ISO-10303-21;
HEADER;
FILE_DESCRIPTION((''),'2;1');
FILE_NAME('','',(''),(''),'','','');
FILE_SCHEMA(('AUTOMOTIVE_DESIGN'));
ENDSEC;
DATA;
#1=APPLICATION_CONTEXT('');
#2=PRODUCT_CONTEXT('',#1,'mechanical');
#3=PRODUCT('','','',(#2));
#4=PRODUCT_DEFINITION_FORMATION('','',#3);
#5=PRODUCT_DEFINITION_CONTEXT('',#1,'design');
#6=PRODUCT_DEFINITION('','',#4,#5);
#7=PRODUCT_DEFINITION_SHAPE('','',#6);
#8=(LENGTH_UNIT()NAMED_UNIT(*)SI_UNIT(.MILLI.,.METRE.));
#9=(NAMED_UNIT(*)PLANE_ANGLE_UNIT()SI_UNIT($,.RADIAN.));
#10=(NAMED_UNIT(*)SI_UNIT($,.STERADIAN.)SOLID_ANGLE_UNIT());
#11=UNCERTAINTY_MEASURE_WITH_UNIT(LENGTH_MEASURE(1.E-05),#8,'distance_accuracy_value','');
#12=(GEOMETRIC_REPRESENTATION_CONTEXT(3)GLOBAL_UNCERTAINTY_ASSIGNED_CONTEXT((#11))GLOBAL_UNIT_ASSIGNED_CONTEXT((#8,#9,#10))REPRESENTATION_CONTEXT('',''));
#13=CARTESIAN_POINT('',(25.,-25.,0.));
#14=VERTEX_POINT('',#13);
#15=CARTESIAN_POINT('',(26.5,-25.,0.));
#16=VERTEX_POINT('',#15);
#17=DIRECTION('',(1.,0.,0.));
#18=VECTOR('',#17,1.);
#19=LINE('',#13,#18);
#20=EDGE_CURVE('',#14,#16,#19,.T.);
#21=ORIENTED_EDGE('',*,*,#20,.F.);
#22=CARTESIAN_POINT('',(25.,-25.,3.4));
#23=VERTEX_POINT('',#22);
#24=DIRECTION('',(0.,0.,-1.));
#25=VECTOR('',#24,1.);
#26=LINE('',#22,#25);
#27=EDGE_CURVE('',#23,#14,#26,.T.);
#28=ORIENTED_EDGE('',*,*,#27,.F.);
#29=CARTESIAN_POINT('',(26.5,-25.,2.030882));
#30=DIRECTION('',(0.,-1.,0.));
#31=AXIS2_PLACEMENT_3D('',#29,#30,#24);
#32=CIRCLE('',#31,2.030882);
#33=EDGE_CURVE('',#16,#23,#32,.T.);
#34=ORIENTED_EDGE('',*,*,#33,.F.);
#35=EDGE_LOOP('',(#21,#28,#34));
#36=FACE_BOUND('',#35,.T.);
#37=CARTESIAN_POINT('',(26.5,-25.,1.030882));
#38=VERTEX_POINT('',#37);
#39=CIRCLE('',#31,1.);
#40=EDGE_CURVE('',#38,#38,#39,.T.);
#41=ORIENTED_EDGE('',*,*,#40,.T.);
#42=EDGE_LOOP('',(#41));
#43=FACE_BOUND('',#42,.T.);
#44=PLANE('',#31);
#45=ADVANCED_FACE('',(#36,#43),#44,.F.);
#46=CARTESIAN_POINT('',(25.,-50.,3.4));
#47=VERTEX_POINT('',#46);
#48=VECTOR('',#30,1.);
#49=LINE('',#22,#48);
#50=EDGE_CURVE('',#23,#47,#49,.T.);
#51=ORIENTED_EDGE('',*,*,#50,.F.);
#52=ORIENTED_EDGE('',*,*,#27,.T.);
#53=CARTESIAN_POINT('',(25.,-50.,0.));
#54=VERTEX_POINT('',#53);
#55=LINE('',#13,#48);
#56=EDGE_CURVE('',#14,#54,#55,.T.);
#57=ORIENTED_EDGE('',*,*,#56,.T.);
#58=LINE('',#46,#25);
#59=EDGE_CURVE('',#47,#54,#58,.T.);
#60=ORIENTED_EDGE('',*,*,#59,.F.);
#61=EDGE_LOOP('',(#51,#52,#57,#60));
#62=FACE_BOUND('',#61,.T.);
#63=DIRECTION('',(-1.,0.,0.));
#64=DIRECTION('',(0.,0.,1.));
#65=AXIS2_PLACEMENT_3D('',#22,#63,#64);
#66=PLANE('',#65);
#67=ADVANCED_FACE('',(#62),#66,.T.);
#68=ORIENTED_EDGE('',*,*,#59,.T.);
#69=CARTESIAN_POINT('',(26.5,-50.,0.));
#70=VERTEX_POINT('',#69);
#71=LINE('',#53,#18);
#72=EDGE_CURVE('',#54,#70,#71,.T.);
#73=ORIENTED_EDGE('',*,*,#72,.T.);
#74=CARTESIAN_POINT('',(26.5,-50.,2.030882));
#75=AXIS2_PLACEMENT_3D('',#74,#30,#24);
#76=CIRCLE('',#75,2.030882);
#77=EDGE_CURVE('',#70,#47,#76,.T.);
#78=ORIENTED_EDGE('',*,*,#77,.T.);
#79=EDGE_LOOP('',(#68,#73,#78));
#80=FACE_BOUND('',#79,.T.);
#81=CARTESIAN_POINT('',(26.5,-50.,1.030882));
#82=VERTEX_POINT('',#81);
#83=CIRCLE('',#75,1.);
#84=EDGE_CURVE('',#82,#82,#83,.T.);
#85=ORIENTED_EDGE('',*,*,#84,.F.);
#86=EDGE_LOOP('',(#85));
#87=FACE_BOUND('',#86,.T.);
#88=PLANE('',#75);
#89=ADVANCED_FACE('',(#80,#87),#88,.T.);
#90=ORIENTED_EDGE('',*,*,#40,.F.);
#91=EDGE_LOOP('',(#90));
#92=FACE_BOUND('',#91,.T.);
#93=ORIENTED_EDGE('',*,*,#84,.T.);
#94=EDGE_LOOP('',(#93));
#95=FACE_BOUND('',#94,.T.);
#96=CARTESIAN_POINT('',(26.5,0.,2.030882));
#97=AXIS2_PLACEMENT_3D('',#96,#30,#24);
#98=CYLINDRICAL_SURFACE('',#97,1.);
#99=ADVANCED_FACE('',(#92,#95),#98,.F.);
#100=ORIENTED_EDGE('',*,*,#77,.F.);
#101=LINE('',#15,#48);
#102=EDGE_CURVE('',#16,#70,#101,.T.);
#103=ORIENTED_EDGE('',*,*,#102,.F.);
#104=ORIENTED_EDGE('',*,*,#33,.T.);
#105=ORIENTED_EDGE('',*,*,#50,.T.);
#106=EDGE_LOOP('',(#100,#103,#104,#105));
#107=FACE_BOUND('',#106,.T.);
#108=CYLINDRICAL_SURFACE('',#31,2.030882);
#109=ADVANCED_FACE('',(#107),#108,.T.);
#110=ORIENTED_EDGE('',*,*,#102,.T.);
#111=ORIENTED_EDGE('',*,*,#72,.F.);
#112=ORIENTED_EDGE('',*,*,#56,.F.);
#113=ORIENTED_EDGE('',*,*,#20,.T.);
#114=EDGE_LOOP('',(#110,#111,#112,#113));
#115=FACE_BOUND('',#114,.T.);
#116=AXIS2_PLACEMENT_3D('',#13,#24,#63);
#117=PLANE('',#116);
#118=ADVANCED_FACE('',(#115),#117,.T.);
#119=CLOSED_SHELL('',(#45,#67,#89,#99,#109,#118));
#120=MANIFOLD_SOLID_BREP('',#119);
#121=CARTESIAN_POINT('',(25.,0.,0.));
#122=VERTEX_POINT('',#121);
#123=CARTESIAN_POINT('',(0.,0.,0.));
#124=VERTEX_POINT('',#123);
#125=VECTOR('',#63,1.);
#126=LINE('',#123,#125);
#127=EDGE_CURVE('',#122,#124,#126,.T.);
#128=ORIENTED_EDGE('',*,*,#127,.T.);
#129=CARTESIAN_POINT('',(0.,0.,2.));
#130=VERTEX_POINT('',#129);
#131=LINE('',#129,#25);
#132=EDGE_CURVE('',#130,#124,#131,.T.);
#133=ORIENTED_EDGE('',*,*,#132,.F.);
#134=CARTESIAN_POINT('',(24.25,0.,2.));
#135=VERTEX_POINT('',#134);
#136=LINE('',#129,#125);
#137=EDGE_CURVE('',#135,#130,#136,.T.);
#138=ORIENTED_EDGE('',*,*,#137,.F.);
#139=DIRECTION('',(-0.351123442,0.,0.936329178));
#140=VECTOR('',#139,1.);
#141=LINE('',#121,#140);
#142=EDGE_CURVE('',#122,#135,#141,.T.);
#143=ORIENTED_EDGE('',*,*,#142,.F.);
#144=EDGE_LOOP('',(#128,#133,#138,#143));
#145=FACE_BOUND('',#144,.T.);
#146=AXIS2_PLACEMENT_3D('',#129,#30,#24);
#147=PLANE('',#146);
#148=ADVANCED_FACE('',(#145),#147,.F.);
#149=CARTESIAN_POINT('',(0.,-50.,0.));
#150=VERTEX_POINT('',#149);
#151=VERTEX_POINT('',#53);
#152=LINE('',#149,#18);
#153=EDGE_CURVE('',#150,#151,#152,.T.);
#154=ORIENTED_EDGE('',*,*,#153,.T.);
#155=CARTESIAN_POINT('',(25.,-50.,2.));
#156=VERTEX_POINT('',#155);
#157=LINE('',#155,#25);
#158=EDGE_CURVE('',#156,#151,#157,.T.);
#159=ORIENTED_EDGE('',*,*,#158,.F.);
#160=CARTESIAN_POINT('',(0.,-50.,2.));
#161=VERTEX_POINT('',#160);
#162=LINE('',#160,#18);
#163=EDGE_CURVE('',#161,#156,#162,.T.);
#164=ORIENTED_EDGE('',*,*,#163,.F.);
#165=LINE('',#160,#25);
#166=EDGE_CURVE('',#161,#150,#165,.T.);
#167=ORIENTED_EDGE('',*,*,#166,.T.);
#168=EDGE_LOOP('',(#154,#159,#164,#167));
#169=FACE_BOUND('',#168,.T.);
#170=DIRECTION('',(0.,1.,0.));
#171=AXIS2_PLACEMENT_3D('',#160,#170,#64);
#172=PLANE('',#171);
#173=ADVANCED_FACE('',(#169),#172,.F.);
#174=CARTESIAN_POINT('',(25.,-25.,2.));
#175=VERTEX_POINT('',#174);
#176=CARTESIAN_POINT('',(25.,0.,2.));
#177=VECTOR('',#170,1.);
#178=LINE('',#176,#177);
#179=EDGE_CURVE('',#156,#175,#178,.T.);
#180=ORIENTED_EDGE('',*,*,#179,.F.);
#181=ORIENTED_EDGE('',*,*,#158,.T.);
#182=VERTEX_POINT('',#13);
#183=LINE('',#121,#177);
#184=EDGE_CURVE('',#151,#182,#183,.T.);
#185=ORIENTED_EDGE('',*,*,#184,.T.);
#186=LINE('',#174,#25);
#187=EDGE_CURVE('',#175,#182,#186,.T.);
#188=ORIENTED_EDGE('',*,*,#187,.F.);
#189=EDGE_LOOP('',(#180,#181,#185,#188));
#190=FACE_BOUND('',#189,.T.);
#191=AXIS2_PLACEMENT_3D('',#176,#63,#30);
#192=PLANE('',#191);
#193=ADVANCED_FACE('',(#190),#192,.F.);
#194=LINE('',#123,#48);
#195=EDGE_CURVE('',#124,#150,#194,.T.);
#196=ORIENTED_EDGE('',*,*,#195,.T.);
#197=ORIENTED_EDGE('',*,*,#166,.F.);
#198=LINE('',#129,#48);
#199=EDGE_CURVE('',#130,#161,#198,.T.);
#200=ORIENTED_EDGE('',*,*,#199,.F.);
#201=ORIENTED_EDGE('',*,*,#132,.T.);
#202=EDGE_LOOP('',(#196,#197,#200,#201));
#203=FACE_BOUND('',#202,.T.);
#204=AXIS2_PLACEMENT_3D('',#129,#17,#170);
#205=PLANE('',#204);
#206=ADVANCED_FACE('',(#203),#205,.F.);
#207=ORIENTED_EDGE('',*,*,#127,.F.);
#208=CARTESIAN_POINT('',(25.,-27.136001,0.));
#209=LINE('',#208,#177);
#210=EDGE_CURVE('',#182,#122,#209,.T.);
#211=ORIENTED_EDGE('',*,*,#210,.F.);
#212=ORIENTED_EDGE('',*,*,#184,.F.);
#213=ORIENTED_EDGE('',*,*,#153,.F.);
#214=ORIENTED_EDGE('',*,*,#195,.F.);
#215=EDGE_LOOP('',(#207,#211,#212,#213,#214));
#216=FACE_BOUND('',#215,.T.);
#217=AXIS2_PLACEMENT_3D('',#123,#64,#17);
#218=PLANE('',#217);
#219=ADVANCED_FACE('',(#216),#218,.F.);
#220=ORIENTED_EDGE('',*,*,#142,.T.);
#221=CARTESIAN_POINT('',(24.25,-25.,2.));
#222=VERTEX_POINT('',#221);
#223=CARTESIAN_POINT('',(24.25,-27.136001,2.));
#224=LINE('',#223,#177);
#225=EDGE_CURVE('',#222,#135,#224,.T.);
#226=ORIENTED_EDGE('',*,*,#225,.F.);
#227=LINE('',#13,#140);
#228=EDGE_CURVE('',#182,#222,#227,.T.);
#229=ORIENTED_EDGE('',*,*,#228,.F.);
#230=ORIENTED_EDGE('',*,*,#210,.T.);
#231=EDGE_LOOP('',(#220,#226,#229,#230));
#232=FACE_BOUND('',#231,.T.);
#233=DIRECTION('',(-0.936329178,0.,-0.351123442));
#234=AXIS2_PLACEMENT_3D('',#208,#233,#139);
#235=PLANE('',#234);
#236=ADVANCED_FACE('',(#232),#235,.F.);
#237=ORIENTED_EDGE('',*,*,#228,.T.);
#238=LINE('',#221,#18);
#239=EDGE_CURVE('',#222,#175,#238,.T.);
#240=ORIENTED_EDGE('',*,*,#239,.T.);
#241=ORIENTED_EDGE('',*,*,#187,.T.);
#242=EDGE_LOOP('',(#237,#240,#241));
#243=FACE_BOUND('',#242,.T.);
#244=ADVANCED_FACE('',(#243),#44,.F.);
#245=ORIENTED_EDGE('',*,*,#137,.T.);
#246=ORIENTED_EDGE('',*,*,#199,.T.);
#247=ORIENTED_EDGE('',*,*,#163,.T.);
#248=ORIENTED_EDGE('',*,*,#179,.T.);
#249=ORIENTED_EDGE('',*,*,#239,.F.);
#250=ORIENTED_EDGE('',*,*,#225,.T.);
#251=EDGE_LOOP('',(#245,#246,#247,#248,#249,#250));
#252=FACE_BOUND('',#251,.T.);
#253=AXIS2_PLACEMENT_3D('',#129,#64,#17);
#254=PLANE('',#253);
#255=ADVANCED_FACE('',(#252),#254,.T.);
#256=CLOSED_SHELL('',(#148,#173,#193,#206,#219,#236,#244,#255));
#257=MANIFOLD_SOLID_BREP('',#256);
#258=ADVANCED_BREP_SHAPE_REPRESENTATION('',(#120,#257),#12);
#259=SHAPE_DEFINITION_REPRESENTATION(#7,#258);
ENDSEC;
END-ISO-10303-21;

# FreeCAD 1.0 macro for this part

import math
import FreeCAD as App
import Part
import Sketcher

V = App.Vector


def add_polygon(sketch, points):
    """Adds a closed chain of lines whose ends are joined by coincident constraints."""
    first, n = sketch.GeometryCount, len(points)
    for a, b in zip(points, points[1:] + points[:1]):
        sketch.addGeometry(Part.LineSegment(App.Vector(*a, 0), App.Vector(*b, 0)), False)
    for i in range(n):
        sketch.addConstraint(Sketcher.Constraint("Coincident", first + i, 2, first + (i + 1) % n, 1))

doc = App.newDocument("Part")
params = doc.addObject("Spreadsheet::Sheet", "Params")
for row, (alias, value) in enumerate([
    ("sketch1_width", "25 mm"),
    ("sketch1_height", "50 mm"),
    ("pad1_length", "2 mm"),
    ("sketch2_height", "2 mm"),
    ("sketch2_width", "0.75 mm"),
    ("pocket1_length", "25 mm"),
    ("sketch3_width", "1.5 mm"),
    ("sketch3_height", "3.4 mm"),
    ("pad2_length", "25 mm"),
    ("sketch4_diameter", "2 mm"),
], start=1):
    params.set(f"A{row}", alias)
    params.set(f"B{row}", "=" + value)
    params.setAlias(f"B{row}", alias)

body = doc.addObject("PartDesign::Body", "Body")

sketch1 = body.newObject("Sketcher::SketchObject", "Sketch")
sketch1.AttachmentSupport = (doc.getObject("XY_Plane"), [""])
sketch1.MapMode = "FlatFace"
add_polygon(sketch1, [(0, 0), (0, -50), (25, -50), (25, 0)])
sketch1.addConstraint([
    Sketcher.Constraint("Vertical", 0),
    Sketcher.Constraint("Horizontal", 1),
    Sketcher.Constraint("Vertical", 2),
    Sketcher.Constraint("Horizontal", 3),
    Sketcher.Constraint("Coincident", 3, 2, -1, 1),
    Sketcher.Constraint("DistanceX", 1, 1, 1, 2, 25.0),
    Sketcher.Constraint("DistanceY", 0, 2, 0, 1, 50.0),
])
sketch1.setExpression("Constraints[9]", "Params.sketch1_width")
sketch1.setExpression("Constraints[10]", "Params.sketch1_height")
pad1 = body.newObject("PartDesign::Pad", "Pad")
pad1.Profile = sketch1
pad1.setExpression("Length", "Params.pad1_length")

sketch2 = body.newObject("Sketcher::SketchObject", "Sketch001")
sketch2.AttachmentSupport = (doc.getObject("XZ_Plane"), [""])
sketch2.MapMode = "FlatFace"
add_polygon(sketch2, [(25, 0), (24.2, 2), (25, 2)])
sketch2.addConstraint([
    Sketcher.Constraint("Horizontal", 1),
    Sketcher.Constraint("Vertical", 2),
    Sketcher.Constraint("PointOnObject", 2, 2, -1),
    Sketcher.Constraint("DistanceY", 2, 2, 2, 1, 2.0),
    Sketcher.Constraint("DistanceX", -1, 1, 1, 2, 25.0),
    Sketcher.Constraint("DistanceX", 1, 1, 1, 2, 0.75),
])
sketch2.setExpression("Constraints[6]", "Params.sketch2_height")
sketch2.setExpression("Constraints[8]", "Params.sketch2_width")
pocket1 = body.newObject("PartDesign::Pocket", "Pocket")
pocket1.Profile = sketch2
pocket1.setExpression("Length", "Params.pocket1_length")
pocket1.Reversed = True
body2 = doc.addObject("PartDesign::Body", "Body001")

sketch3 = body2.newObject("Sketcher::SketchObject", "Sketch002")
sketch3.AttachmentSupport = (doc.getObject("XZ_Plane001"), [""])
sketch3.MapMode = "FlatFace"
sketch3.AttachmentOffset = App.Placement(V(0, 0, 50), App.Rotation())
sketch3.addGeometry([
    Part.LineSegment(V(25, 0, 0), V(26.5, 0, 0)),
    Part.ArcOfCircle(Part.Circle(V(26.5, 2, 0), V(0, 0, 1), 2), math.radians(-90), math.radians(138)),
    Part.LineSegment(V(25, 3.4, 0), V(25, 0, 0)),
], False)
sketch3.addConstraint([
    Sketcher.Constraint("Tangent", 0, 2, 1, 1),
    Sketcher.Constraint("Coincident", 1, 2, 2, 1),
    Sketcher.Constraint("Coincident", 2, 2, 0, 1),
    Sketcher.Constraint("Horizontal", 0),
    Sketcher.Constraint("Vertical", 2),
    Sketcher.Constraint("PointOnObject", 0, 2, -1),
    Sketcher.Constraint("DistanceX", 0, 1, 0, 2, 1.5),
    Sketcher.Constraint("DistanceY", 2, 2, 2, 1, 3.4),
    Sketcher.Constraint("DistanceX", -1, 1, 1, 2, 25.0),
])
sketch3.setExpression("Constraints[6]", "Params.sketch3_width")
sketch3.setExpression("Constraints[7]", "Params.sketch3_height")
pad2 = body2.newObject("PartDesign::Pad", "Pad001")
pad2.Profile = sketch3
pad2.setExpression("Length", "Params.pad2_length")
pad2.Reversed = True

sketch4 = body2.newObject("Sketcher::SketchObject", "Sketch003")
sketch4.AttachmentSupport = (doc.getObject("XZ_Plane001"), [""])
sketch4.MapMode = "FlatFace"
sketch4.AttachmentOffset = App.Placement(V(0, 0, 50), App.Rotation())
sketch4.addGeometry(Part.Circle(V(26.5, 2, 0), V(0, 0, 1), 1), False)
sketch4.addConstraint([
    Sketcher.Constraint("Diameter", 0, 2.0),
    Sketcher.Constraint("DistanceX", -1, 1, 0, 3, 26.5),
    Sketcher.Constraint("DistanceY", -1, 1, 0, 3, 2.030882),
])
sketch4.setExpression("Constraints[0]", "Params.sketch4_diameter")
pocket2 = body2.newObject("PartDesign::Pocket", "Pocket001")
pocket2.Profile = sketch4
pocket2.Type = "ThroughAll"

doc.recompute()
